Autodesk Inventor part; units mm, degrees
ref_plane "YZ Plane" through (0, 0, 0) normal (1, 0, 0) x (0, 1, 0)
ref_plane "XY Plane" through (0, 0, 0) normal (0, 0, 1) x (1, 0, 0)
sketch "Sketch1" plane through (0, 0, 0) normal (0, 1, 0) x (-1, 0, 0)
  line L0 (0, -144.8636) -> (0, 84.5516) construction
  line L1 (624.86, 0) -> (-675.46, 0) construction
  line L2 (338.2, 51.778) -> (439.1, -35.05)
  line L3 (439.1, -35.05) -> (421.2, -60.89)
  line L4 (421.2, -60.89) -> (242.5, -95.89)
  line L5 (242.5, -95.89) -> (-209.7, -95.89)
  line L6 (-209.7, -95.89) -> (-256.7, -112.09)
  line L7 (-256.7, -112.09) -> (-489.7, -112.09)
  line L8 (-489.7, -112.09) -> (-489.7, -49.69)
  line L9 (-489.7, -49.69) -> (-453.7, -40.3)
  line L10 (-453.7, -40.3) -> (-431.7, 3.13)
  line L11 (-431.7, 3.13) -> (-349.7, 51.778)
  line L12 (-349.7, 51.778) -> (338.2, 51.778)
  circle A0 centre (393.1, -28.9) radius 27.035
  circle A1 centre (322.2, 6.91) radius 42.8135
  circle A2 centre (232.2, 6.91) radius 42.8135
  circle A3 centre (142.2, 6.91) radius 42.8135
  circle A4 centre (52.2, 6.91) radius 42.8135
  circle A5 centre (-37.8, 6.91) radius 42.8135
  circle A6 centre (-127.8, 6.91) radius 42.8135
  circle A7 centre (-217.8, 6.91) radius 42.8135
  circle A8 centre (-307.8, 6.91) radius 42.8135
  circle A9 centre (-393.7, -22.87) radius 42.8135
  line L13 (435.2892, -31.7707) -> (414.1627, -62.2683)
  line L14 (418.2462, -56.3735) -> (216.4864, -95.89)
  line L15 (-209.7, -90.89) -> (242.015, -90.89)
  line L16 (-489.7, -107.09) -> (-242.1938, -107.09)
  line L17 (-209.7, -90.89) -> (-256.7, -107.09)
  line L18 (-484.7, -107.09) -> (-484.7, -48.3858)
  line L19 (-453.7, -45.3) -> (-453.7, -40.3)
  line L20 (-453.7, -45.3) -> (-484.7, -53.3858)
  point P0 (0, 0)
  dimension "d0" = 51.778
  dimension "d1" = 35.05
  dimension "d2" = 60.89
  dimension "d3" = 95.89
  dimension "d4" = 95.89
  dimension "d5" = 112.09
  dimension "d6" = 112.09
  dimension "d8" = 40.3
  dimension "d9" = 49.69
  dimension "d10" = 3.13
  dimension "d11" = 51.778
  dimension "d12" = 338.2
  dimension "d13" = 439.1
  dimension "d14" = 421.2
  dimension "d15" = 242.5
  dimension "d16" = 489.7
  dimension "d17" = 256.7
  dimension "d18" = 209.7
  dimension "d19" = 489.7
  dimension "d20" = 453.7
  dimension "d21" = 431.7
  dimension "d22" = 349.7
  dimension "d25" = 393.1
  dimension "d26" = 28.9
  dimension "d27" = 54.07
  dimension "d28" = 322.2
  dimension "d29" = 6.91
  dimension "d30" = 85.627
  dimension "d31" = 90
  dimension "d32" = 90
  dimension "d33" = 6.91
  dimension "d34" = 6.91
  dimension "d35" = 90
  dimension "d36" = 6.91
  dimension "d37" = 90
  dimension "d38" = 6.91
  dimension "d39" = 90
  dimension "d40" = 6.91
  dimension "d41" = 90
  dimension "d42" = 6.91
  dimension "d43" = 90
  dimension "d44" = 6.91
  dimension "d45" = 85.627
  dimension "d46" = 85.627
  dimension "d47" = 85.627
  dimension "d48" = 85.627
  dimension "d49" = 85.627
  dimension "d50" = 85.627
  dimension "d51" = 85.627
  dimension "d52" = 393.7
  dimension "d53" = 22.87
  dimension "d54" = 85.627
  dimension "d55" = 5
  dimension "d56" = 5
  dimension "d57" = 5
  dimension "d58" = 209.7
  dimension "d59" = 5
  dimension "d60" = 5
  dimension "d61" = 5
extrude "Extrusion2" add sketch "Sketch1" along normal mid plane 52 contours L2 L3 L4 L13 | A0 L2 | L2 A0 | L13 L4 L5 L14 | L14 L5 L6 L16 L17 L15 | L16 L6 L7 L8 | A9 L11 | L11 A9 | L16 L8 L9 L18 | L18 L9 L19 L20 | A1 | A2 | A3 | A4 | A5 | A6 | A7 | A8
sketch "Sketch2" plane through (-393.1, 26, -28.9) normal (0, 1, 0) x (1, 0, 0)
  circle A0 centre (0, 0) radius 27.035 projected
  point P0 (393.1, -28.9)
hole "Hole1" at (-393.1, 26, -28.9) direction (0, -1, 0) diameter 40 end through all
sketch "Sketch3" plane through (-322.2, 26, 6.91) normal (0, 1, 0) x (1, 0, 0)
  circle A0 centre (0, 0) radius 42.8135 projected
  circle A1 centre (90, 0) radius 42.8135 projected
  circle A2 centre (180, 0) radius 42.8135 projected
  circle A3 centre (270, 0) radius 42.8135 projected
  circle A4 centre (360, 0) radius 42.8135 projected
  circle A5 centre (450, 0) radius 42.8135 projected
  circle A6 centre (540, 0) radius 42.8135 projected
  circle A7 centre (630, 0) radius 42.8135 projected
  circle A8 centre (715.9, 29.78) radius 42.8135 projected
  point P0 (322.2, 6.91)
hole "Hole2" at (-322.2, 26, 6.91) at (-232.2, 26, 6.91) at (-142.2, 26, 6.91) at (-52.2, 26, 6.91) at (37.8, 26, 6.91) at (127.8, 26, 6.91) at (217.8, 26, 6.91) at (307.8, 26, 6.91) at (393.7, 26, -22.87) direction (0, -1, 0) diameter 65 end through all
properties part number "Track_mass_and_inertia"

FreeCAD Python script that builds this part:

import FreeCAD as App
import Part
import Sketcher


def add_polygon(sketch, points):
    """Adds a closed chain of lines whose ends are joined by coincident constraints."""
    first, n = sketch.GeometryCount, len(points)
    for a, b in zip(points, points[1:] + points[:1]):
        sketch.addGeometry(Part.LineSegment(App.Vector(*a, 0), App.Vector(*b, 0)), False)
    for i in range(n):
        sketch.addConstraint(Sketcher.Constraint("Coincident", first + i, 2, first + (i + 1) % n, 1))

doc = App.newDocument("Part")
params = doc.addObject("Spreadsheet::Sheet", "Params")
for row, (alias, value) in enumerate([
    ("sketch1_diameter", "54.07 mm"),
    ("sketch1_height", "5 mm"),
    ("pad1_length", "52 mm"),
    ("sketch2_diameter", "40 mm"),
    ("hole_diameter", "40 mm"),
    ("sketch3_diameter", "65 mm"),
    ("hole2_diameter", "65 mm"),
], start=1):
    params.set(f"A{row}", alias)
    params.set(f"B{row}", "=" + value)
    params.setAlias(f"B{row}", alias)

body = doc.addObject("PartDesign::Body", "Body")
body.AllowCompound = True

# Sketch on XZ plane
sketch1 = body.newObject("Sketcher::SketchObject", "Sketch")
sketch1.AttachmentSupport = (doc.getObject("XZ_Plane"), [""])
sketch1.MapMode = "FlatFace"
add_polygon(sketch1, [(-439, -35), (-435, -32), (-418, -56), (-242, -91), (210, -91), (257, -107), (485, -107), (485, -53), (454, -45), (454, -40), (490, -50), (490, -112), (257, -112), (210, -96), (-242, -96), (-421, -61)])  # lines 0-15
sketch1.addGeometry(Part.Circle(App.Vector(-393, -29, 0), App.Vector(0, 0, 1), 27), False)  # 16
sketch1.addGeometry(Part.Circle(App.Vector(394, -23, 0), App.Vector(0, 0, 1), 43), False)  # 17
sketch1.addGeometry(Part.Circle(App.Vector(-322, 7, 0), App.Vector(0, 0, 1), 43), False)  # 18
sketch1.addGeometry(Part.Circle(App.Vector(-232, 7, 0), App.Vector(0, 0, 1), 43), False)  # 19
sketch1.addGeometry(Part.Circle(App.Vector(-142, 7, 0), App.Vector(0, 0, 1), 43), False)  # 20
sketch1.addGeometry(Part.Circle(App.Vector(-52, 7, 0), App.Vector(0, 0, 1), 43), False)  # 21
sketch1.addGeometry(Part.Circle(App.Vector(38, 7, 0), App.Vector(0, 0, 1), 43), False)  # 22
sketch1.addGeometry(Part.Circle(App.Vector(128, 7, 0), App.Vector(0, 0, 1), 43), False)  # 23
sketch1.addGeometry(Part.Circle(App.Vector(218, 7, 0), App.Vector(0, 0, 1), 43), False)  # 24
sketch1.addGeometry(Part.Circle(App.Vector(308, 7, 0), App.Vector(0, 0, 1), 43), False)  # 25
sketch1.addConstraint(Sketcher.Constraint("Horizontal", 3))
sketch1.addConstraint(Sketcher.Constraint("Horizontal", 5))
sketch1.addConstraint(Sketcher.Constraint("Vertical", 6))
sketch1.addConstraint(Sketcher.Constraint("Vertical", 8))
sketch1.addConstraint(Sketcher.Constraint("Vertical", 10))
sketch1.addConstraint(Sketcher.Constraint("Horizontal", 11))
sketch1.addConstraint(Sketcher.Constraint("Horizontal", 13))
sketch1.addConstraint(Sketcher.Constraint("Equal", 17, 18))
sketch1.addConstraint(Sketcher.Constraint("Equal", 18, 19))
sketch1.addConstraint(Sketcher.Constraint("Equal", 19, 20))
sketch1.addConstraint(Sketcher.Constraint("Equal", 20, 21))
sketch1.addConstraint(Sketcher.Constraint("Equal", 21, 22))
sketch1.addConstraint(Sketcher.Constraint("Equal", 22, 23))
sketch1.addConstraint(Sketcher.Constraint("Equal", 23, 24))
sketch1.addConstraint(Sketcher.Constraint("Equal", 24, 25))
sketch1.addConstraint(Sketcher.Constraint("Parallel", 7, 9))
sketch1.addConstraint(Sketcher.Constraint("Parallel", 4, 12))
sketch1.addConstraint(Sketcher.Constraint("Parallel", 2, 14))
sketch1.addConstraint(Sketcher.Constraint("Parallel", 1, 15))
sketch1.addConstraint(Sketcher.Constraint("Horizontal", 18, 3, 19, 3))
sketch1.addConstraint(Sketcher.Constraint("Horizontal", 19, 3, 20, 3))
sketch1.addConstraint(Sketcher.Constraint("Horizontal", 20, 3, 21, 3))
sketch1.addConstraint(Sketcher.Constraint("Horizontal", 21, 3, 22, 3))
sketch1.addConstraint(Sketcher.Constraint("Horizontal", 22, 3, 23, 3))
sketch1.addConstraint(Sketcher.Constraint("Horizontal", 23, 3, 24, 3))
sketch1.addConstraint(Sketcher.Constraint("Horizontal", 24, 3, 25, 3))
sketch1.addConstraint(Sketcher.Constraint("Vertical", 4, 2, 11, 2))
sketch1.addConstraint(Sketcher.Constraint("Vertical", 3, 2, 12, 2))
sketch1.addConstraint(Sketcher.Constraint("Diameter", 16, 54.07))
sketch1.addConstraint(Sketcher.Constraint("DistanceY", 8, 1, 8, 2, 5.0))
sketch1.addConstraint(Sketcher.Constraint("Diameter", 17, 85.627))
sketch1.addConstraint(Sketcher.Constraint("DistanceX", 18, 3, 19, 3, 90.0))
sketch1.addConstraint(Sketcher.Constraint("DistanceX", 19, 3, 20, 3, 90.0))
sketch1.addConstraint(Sketcher.Constraint("DistanceX", 20, 3, 21, 3, 90.0))
sketch1.addConstraint(Sketcher.Constraint("DistanceX", 21, 3, 22, 3, 90.0))
sketch1.addConstraint(Sketcher.Constraint("DistanceX", 22, 3, 23, 3, 90.0))
sketch1.addConstraint(Sketcher.Constraint("DistanceX", 23, 3, 24, 3, 90.0))
sketch1.addConstraint(Sketcher.Constraint("DistanceX", 24, 3, 25, 3, 90.0))
sketch1.addConstraint(Sketcher.Constraint("DistanceX", 6, 2, 9, 2, 5.0))
sketch1.addConstraint(Sketcher.Constraint("DistanceY", 10, 2, 5, 2, 5.0))
sketch1.addConstraint(Sketcher.Constraint("DistanceX", 16, 3, -1, 1, 393.1))
sketch1.addConstraint(Sketcher.Constraint("DistanceY", 16, 3, -1, 1, 28.9))
sketch1.addConstraint(Sketcher.Constraint("DistanceX", -1, 1, 17, 3, 393.7))
sketch1.addConstraint(Sketcher.Constraint("DistanceX", 18, 3, -1, 1, 322.2))
sketch1.addConstraint(Sketcher.Constraint("DistanceX", -1, 1, 3, 2, 209.7))
sketch1.addConstraint(Sketcher.Constraint("DistanceX", -1, 1, 4, 2, 256.7))
sketch1.addConstraint(Sketcher.Constraint("DistanceX", -1, 1, 7, 2, 453.7))
sketch1.addConstraint(Sketcher.Constraint("DistanceY", 8, 2, -1, 1, 40.3))
sketch1.addConstraint(Sketcher.Constraint("DistanceX", -1, 1, 9, 2, 489.7))
sketch1.addConstraint(Sketcher.Constraint("DistanceX", 13, 2, -1, 1, 242.5))
sketch1.addConstraint(Sketcher.Constraint("DistanceX", 14, 2, -1, 1, 421.2))
sketch1.addConstraint(Sketcher.Constraint("DistanceX", 15, 2, -1, 1, 439.1))
sketch1.addConstraint(Sketcher.Constraint("DistanceY", 17, 3, -1, 1, 22.87))
sketch1.addConstraint(Sketcher.Constraint("DistanceY", -1, 1, 18, 3, 6.91))
sketch1.addConstraint(Sketcher.Constraint("DistanceY", 9, 2, -1, 1, 49.69))
sketch1.addConstraint(Sketcher.Constraint("DistanceY", 10, 2, -1, 1, 112.09))
sketch1.addConstraint(Sketcher.Constraint("DistanceY", 12, 2, -1, 1, 95.89))
sketch1.addConstraint(Sketcher.Constraint("DistanceY", 14, 2, -1, 1, 60.89))
sketch1.addConstraint(Sketcher.Constraint("DistanceY", 15, 2, -1, 1, 35.05))
sketch1.addConstraint(Sketcher.Constraint("DistanceX", 3, 1, 3, 2, 451.715))
sketch1.addConstraint(Sketcher.Constraint("DistanceX", 0, 2, 1, 2, 17.043))
sketch1.addConstraint(Sketcher.Constraint("Distance", 0, 5.0275))
sketch1.setExpression("Constraints[44]", "Params.sketch1_diameter")
sketch1.setExpression("Constraints[45]", "Params.sketch1_height")
pad1 = body.newObject("PartDesign::Pad", "Pad")
pad1.Profile = sketch1
pad1.setExpression("Length", "Params.pad1_length")
pad1.Midplane = True

# Sketch on XZ plane
sketch2 = body.newObject("Sketcher::SketchObject", "Sketch001")
sketch2.AttachmentSupport = (doc.getObject("XZ_Plane"), [""])
sketch2.MapMode = "FlatFace"
sketch2.AttachmentOffset = App.Placement(App.Vector(0, 0, -26), App.Rotation())
sketch2.addGeometry(Part.Circle(App.Vector(-393, -29, 0), App.Vector(0, 0, 1), 20), False)
sketch2.addConstraint(Sketcher.Constraint("Diameter", 0, 40.0))
sketch2.addConstraint(Sketcher.Constraint("DistanceX", 0, 3, -1, 1, 393.1))
sketch2.addConstraint(Sketcher.Constraint("DistanceY", 0, 3, -1, 1, 28.9))
sketch2.setExpression("Constraints[0]", "Params.sketch2_diameter")
doc.recompute()
hole = body.newObject("PartDesign::Hole", "Hole")
hole.Profile = sketch2
hole.ThreadType = "None"
hole.setExpression("Diameter", "Params.hole_diameter")
hole.DepthType = "ThroughAll"
hole.Reversed = True

# Sketch on XZ plane
sketch3 = body.newObject("Sketcher::SketchObject", "Sketch002")
sketch3.AttachmentSupport = (doc.getObject("XZ_Plane"), [""])
sketch3.MapMode = "FlatFace"
sketch3.AttachmentOffset = App.Placement(App.Vector(0, 0, -26), App.Rotation())
sketch3.addGeometry(Part.Circle(App.Vector(-322, 7, 0), App.Vector(0, 0, 1), 32), False)
sketch3.addGeometry(Part.Circle(App.Vector(-232, 7, 0), App.Vector(0, 0, 1), 32), False)
sketch3.addGeometry(Part.Circle(App.Vector(-142, 7, 0), App.Vector(0, 0, 1), 32), False)
sketch3.addGeometry(Part.Circle(App.Vector(-52, 7, 0), App.Vector(0, 0, 1), 32), False)
sketch3.addGeometry(Part.Circle(App.Vector(38, 7, 0), App.Vector(0, 0, 1), 32), False)
sketch3.addGeometry(Part.Circle(App.Vector(128, 7, 0), App.Vector(0, 0, 1), 32), False)
sketch3.addGeometry(Part.Circle(App.Vector(218, 7, 0), App.Vector(0, 0, 1), 32), False)
sketch3.addGeometry(Part.Circle(App.Vector(308, 7, 0), App.Vector(0, 0, 1), 32), False)
sketch3.addGeometry(Part.Circle(App.Vector(394, -23, 0), App.Vector(0, 0, 1), 32), False)
sketch3.addConstraint(Sketcher.Constraint("Equal", 0, 1))
sketch3.addConstraint(Sketcher.Constraint("Equal", 1, 2))
sketch3.addConstraint(Sketcher.Constraint("Equal", 2, 3))
sketch3.addConstraint(Sketcher.Constraint("Equal", 3, 4))
sketch3.addConstraint(Sketcher.Constraint("Equal", 4, 5))
sketch3.addConstraint(Sketcher.Constraint("Equal", 5, 6))
sketch3.addConstraint(Sketcher.Constraint("Equal", 6, 7))
sketch3.addConstraint(Sketcher.Constraint("Equal", 7, 8))
sketch3.addConstraint(Sketcher.Constraint("Horizontal", 0, 3, 1, 3))
sketch3.addConstraint(Sketcher.Constraint("Horizontal", 1, 3, 2, 3))
sketch3.addConstraint(Sketcher.Constraint("Horizontal", 2, 3, 3, 3))
sketch3.addConstraint(Sketcher.Constraint("Horizontal", 3, 3, 4, 3))
sketch3.addConstraint(Sketcher.Constraint("Horizontal", 4, 3, 5, 3))
sketch3.addConstraint(Sketcher.Constraint("Horizontal", 5, 3, 6, 3))
sketch3.addConstraint(Sketcher.Constraint("Horizontal", 6, 3, 7, 3))
sketch3.addConstraint(Sketcher.Constraint("Diameter", 0, 65.0))
sketch3.addConstraint(Sketcher.Constraint("DistanceX", 0, 3, 1, 3, 90.0))
sketch3.addConstraint(Sketcher.Constraint("DistanceX", 1, 3, 2, 3, 90.0))
sketch3.addConstraint(Sketcher.Constraint("DistanceX", 2, 3, 3, 3, 90.0))
sketch3.addConstraint(Sketcher.Constraint("DistanceX", 3, 3, 4, 3, 90.0))
sketch3.addConstraint(Sketcher.Constraint("DistanceX", 4, 3, 5, 3, 90.0))
sketch3.addConstraint(Sketcher.Constraint("DistanceX", 5, 3, 6, 3, 90.0))
sketch3.addConstraint(Sketcher.Constraint("DistanceX", 6, 3, 7, 3, 90.0))
sketch3.addConstraint(Sketcher.Constraint("DistanceX", 0, 3, -1, 1, 322.2))
sketch3.addConstraint(Sketcher.Constraint("DistanceX", -1, 1, 8, 3, 393.7))
sketch3.addConstraint(Sketcher.Constraint("DistanceY", -1, 1, 0, 3, 6.91))
sketch3.addConstraint(Sketcher.Constraint("DistanceY", 8, 3, -1, 1, 22.87))
sketch3.setExpression("Constraints[15]", "Params.sketch3_diameter")
doc.recompute()
hole2 = body.newObject("PartDesign::Hole", "Hole001")
hole2.Profile = sketch3
hole2.ThreadType = "None"
hole2.setExpression("Diameter", "Params.hole2_diameter")
hole2.DepthType = "ThroughAll"
hole2.Reversed = True

doc.recompute()
